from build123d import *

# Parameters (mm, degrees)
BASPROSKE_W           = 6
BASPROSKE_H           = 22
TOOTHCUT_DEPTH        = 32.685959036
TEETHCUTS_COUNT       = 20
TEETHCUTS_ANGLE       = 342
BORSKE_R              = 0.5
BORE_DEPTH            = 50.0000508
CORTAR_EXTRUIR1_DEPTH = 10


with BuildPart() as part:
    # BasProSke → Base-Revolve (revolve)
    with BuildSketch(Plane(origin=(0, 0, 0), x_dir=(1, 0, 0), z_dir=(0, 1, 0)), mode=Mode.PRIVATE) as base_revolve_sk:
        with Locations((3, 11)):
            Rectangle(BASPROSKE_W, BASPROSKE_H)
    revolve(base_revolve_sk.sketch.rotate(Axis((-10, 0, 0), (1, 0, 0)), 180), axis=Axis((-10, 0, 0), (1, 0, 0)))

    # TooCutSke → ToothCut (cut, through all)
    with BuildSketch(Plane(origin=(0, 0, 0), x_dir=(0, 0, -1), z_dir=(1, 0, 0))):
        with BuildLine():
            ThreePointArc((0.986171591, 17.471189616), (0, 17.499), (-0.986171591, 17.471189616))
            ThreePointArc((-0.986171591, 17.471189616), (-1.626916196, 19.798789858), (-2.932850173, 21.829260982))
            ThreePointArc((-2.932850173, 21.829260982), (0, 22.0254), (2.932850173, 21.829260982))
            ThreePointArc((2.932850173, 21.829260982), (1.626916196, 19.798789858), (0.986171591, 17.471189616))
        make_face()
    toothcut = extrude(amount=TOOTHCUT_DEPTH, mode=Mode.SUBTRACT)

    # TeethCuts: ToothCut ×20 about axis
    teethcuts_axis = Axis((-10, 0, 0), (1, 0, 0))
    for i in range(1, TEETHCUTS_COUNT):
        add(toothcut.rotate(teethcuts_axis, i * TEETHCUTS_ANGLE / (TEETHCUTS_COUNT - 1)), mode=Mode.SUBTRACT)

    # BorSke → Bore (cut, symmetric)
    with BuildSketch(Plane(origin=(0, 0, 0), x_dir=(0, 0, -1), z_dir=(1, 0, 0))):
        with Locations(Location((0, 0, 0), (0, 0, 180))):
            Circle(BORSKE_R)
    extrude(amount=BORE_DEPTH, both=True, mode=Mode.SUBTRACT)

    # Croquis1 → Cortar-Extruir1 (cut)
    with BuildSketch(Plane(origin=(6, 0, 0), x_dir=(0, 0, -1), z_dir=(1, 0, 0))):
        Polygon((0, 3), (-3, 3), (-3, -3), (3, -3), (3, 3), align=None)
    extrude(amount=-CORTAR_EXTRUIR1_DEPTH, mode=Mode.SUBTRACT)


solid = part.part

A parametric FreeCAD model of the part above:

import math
import FreeCAD as App
import Part
import Sketcher

V = App.Vector


def add_polygon(sketch, points):
    """Adds a closed chain of lines whose ends are joined by coincident constraints."""
    first, n = sketch.GeometryCount, len(points)
    for a, b in zip(points, points[1:] + points[:1]):
        sketch.addGeometry(Part.LineSegment(App.Vector(*a, 0), App.Vector(*b, 0)), False)
    for i in range(n):
        sketch.addConstraint(Sketcher.Constraint("Coincident", first + i, 2, first + (i + 1) % n, 1))

doc = App.newDocument("Part")
body = doc.addObject("PartDesign::Body", "Body")

# Sketch on XZ plane
sketch1 = doc.addObject("Sketcher::SketchObject", "Sketch")
body.addObject(sketch1)
sketch1.AttachmentSupport = (doc.XZ_Plane, [""])
sketch1.MapMode = "FlatFace"
add_polygon(sketch1, [(0, -22), (0, 0), (6, 0), (6, -22)])  # lines 0-3
sketch1.addConstraint(Sketcher.Constraint("Vertical", 0))
sketch1.addConstraint(Sketcher.Constraint("Horizontal", 1))
sketch1.addConstraint(Sketcher.Constraint("Vertical", 2))
sketch1.addConstraint(Sketcher.Constraint("Horizontal", 3))
sketch1.addConstraint(Sketcher.Constraint("Coincident", 0, 2, -1, 1))
sketch1.addConstraint(Sketcher.Constraint("DistanceX", 1, 1, 1, 2, 6.0))
sketch1.addConstraint(Sketcher.Constraint("DistanceY", 0, 1, 0, 2, 22.0))
revolution = doc.addObject("PartDesign::Revolution", "Revolution")
body.addObject(revolution)
revolution.Profile = sketch1
revolution.ReferenceAxis = (sketch1, ["H_Axis"])
revolution.Angle = 360

# Sketch on YZ plane
sketch2 = doc.addObject("Sketcher::SketchObject", "Sketch001")
body.addObject(sketch2)
sketch2.AttachmentSupport = (doc.YZ_Plane, [""])
sketch2.MapMode = "FlatFace"
sketch2.addGeometry(Part.ArcOfCircle(Part.Circle(V(0, 0, 0), V(0, 0, 1), 17.499), math.radians(-3.230666), math.radians(3.230666)), False)
sketch2.addGeometry(Part.ArcOfCircle(Part.Circle(V(16.536031, -8.931326, 0), V(0, 0, 1), 8), math.radians(48.573876), math.radians(83.287069)), False)
sketch2.addGeometry(Part.ArcOfCircle(Part.Circle(V(0, 0, 0), V(0, 0, 1), 22.0254), math.radians(-7.652098), math.radians(7.652098)), False)
sketch2.addGeometry(Part.ArcOfCircle(Part.Circle(V(16.536031, 8.931326, 0), V(0, 0, 1), 8), math.radians(-83.287069), math.radians(-48.573876)), False)
sketch2.addConstraint(Sketcher.Constraint("Coincident", 0, 1, 1, 2))
sketch2.addConstraint(Sketcher.Constraint("Coincident", 1, 1, 2, 1))
sketch2.addConstraint(Sketcher.Constraint("Coincident", 2, 2, 3, 2))
sketch2.addConstraint(Sketcher.Constraint("Coincident", 3, 1, 0, 2))
sketch2.addConstraint(Sketcher.Constraint("Coincident", 0, 3, -1, 1))
sketch2.addConstraint(Sketcher.Constraint("Coincident", 2, 3, -1, 1))
sketch2.addConstraint(Sketcher.Constraint("Equal", 1, 3))
sketch2.addConstraint(Sketcher.Constraint("Symmetric", 1, 3, 3, 3, -1))
sketch2.addConstraint(Sketcher.Constraint("Radius", 1, 8.0))
sketch2.addConstraint(Sketcher.Constraint("Radius", 0, 17.499))
sketch2.addConstraint(Sketcher.Constraint("Radius", 2, 22.0254))
sketch2.addConstraint(Sketcher.Constraint("DistanceY", 1, 1, 2, 2, 5.8657))
sketch2.addConstraint(Sketcher.Constraint("DistanceX", -1, 1, 1, 3, 16.536031))
pocket1 = doc.addObject("PartDesign::Pocket", "Pocket")
body.addObject(pocket1)
pocket1.Profile = sketch2
pocket1.Type = "ThroughAll"
pocket1.Reversed = True
doc.recompute()

polarpattern = doc.addObject("PartDesign::PolarPattern", "PolarPattern")
body.addObject(polarpattern)
polarpattern.Originals = [pocket1]
polarpattern.Axis = (doc.X_Axis, [""])
polarpattern.Angle = 360
polarpattern.Occurrences = 20
body.Tip = polarpattern

# Sketch on YZ plane
sketch3 = doc.addObject("Sketcher::SketchObject", "Sketch002")
body.addObject(sketch3)
sketch3.AttachmentSupport = (doc.YZ_Plane, [""])
sketch3.MapMode = "FlatFace"
sketch3.addGeometry(Part.Circle(V(0, 0, 0), V(0, 0, 1), 0.5), False)
sketch3.addConstraint(Sketcher.Constraint("Coincident", 0, 3, -1, 1))
sketch3.addConstraint(Sketcher.Constraint("Diameter", 0, 1.0))
pocket2 = doc.addObject("PartDesign::Pocket", "Pocket001")
body.addObject(pocket2)
pocket2.Profile = sketch3
pocket2.Length = 100.000102
pocket2.Midplane = True

# Sketch on YZ plane
sketch4 = doc.addObject("Sketcher::SketchObject", "Sketch003")
body.addObject(sketch4)
sketch4.AttachmentSupport = (doc.YZ_Plane, [""])
sketch4.MapMode = "FlatFace"
sketch4.AttachmentOffset = App.Placement(V(0, 0, 6), App.Rotation())
add_polygon(sketch4, [(3, 3), (-3, 3), (-3, -3), (3, -3)])  # lines 0-3
sketch4.addConstraint(Sketcher.Constraint("Horizontal", 0))
sketch4.addConstraint(Sketcher.Constraint("Vertical", 1))
sketch4.addConstraint(Sketcher.Constraint("Horizontal", 2))
sketch4.addConstraint(Sketcher.Constraint("Vertical", 3))
sketch4.addConstraint(Sketcher.Constraint("Symmetric", 0, 2, 2, 2, -1, 1))
sketch4.addConstraint(Sketcher.Constraint("Equal", 2, 1))
sketch4.addConstraint(Sketcher.Constraint("DistanceX", 0, 2, 0, 1, 6.0))
pocket3 = doc.addObject("PartDesign::Pocket", "Pocket002")
body.addObject(pocket3)
pocket3.Profile = sketch4
pocket3.Length = 10

doc.recompute()
